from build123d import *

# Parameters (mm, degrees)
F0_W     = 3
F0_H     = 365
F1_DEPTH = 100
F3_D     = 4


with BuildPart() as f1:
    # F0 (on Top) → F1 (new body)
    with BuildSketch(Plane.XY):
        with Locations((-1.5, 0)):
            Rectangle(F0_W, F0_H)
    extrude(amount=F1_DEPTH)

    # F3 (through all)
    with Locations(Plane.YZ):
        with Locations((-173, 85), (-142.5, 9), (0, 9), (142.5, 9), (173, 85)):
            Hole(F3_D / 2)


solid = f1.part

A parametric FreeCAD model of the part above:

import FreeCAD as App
import Part
import Sketcher
Q = App.Units.Quantity

doc = App.newDocument("Part")
params = doc.addObject("Spreadsheet::Sheet", "Params")
for row, (alias, value) in enumerate([
    ("sketch1_width", "3 mm"),
    ("sketch1_height", "365 mm"),
    ("pad1_length", "100 mm"),
    ("sketch2_diameter", "4 mm"),
    ("hole_diameter", "4 mm"),
], start=1):
    params.set(f"A{row}", alias)
    params.set(f"B{row}", "=" + value)
    params.setAlias(f"B{row}", alias)

body = doc.addObject("PartDesign::Body", "Body")

# Sketch on XY plane
sketch1 = doc.addObject("Sketcher::SketchObject", "Sketch")
body.addObject(sketch1)
sketch1.AttachmentSupport = (doc.XY_Plane, [""])
sketch1.MapMode = "FlatFace"
sketch1.addGeometry(Part.LineSegment(App.Vector(-3, 182.5, 0), App.Vector(-3, -182.5, 0)), False)
sketch1.addGeometry(Part.LineSegment(App.Vector(-3, -182.5, 0), App.Vector(0, -182.5, 0)), False)
sketch1.addGeometry(Part.LineSegment(App.Vector(0, -182.5, 0), App.Vector(0, 182.5, 0)), False)
sketch1.addGeometry(Part.LineSegment(App.Vector(0, 182.5, 0), App.Vector(-3, 182.5, 0)), False)
sketch1.addConstraint(Sketcher.Constraint("Coincident", 0, 2, 1, 1))
sketch1.addConstraint(Sketcher.Constraint("Coincident", 1, 2, 2, 1))
sketch1.addConstraint(Sketcher.Constraint("Coincident", 2, 2, 3, 1))
sketch1.addConstraint(Sketcher.Constraint("Coincident", 3, 2, 0, 1))
sketch1.addConstraint(Sketcher.Constraint("Vertical", 0))
sketch1.addConstraint(Sketcher.Constraint("Horizontal", 1))
sketch1.addConstraint(Sketcher.Constraint("Vertical", 2))
sketch1.addConstraint(Sketcher.Constraint("Horizontal", 3))
sketch1.addConstraint(Sketcher.Constraint("Symmetric", 1, 2, 2, 2, -1, 1))
sketch1.addConstraint(Sketcher.Constraint("DistanceX", 1, 1, 1, 2, Q("3 mm")))
sketch1.addConstraint(Sketcher.Constraint("DistanceY", 0, 2, 0, 1, Q("365 mm")))
sketch1.setExpression("Constraints[9]", "Params.sketch1_width")
sketch1.setExpression("Constraints[10]", "Params.sketch1_height")
pad1 = doc.addObject("PartDesign::Pad", "Pad")
body.addObject(pad1)
pad1.Profile = sketch1
pad1.setExpression("Length", "Params.pad1_length")

# Sketch on YZ plane
sketch2 = doc.addObject("Sketcher::SketchObject", "Sketch001")
body.addObject(sketch2)
sketch2.AttachmentSupport = (doc.YZ_Plane, [""])
sketch2.MapMode = "FlatFace"
sketch2.addGeometry(Part.Circle(App.Vector(-173, 85, 0), App.Vector(0, 0, 1), 2), False)
sketch2.addGeometry(Part.Circle(App.Vector(-142.5, 9, 0), App.Vector(0, 0, 1), 2), False)
sketch2.addGeometry(Part.Circle(App.Vector(0, 9, 0), App.Vector(0, 0, 1), 2), False)
sketch2.addGeometry(Part.Circle(App.Vector(142.5, 9, 0), App.Vector(0, 0, 1), 2), False)
sketch2.addGeometry(Part.Circle(App.Vector(173, 85, 0), App.Vector(0, 0, 1), 2), False)
sketch2.addConstraint(Sketcher.Constraint("Equal", 0, 1))
sketch2.addConstraint(Sketcher.Constraint("Equal", 1, 2))
sketch2.addConstraint(Sketcher.Constraint("Equal", 2, 3))
sketch2.addConstraint(Sketcher.Constraint("Equal", 3, 4))
sketch2.addConstraint(Sketcher.Constraint("Symmetric", 1, 3, 3, 3, -2))
sketch2.addConstraint(Sketcher.Constraint("Symmetric", 0, 3, 4, 3, -2))
sketch2.addConstraint(Sketcher.Constraint("PointOnObject", 2, 3, -2))
sketch2.addConstraint(Sketcher.Constraint("Horizontal", 1, 3, 2, 3))
sketch2.addConstraint(Sketcher.Constraint("Diameter", 0, Q("4 mm")))
sketch2.addConstraint(Sketcher.Constraint("DistanceX", 0, 3, -1, 1, Q("173 mm")))
sketch2.addConstraint(Sketcher.Constraint("DistanceY", -1, 1, 0, 3, Q("85 mm")))
sketch2.addConstraint(Sketcher.Constraint("DistanceY", -1, 1, 1, 3, Q("9 mm")))
sketch2.addConstraint(Sketcher.Constraint("DistanceX", 1, 3, 3, 3, Q("285 mm")))
sketch2.setExpression("Constraints[8]", "Params.sketch2_diameter")
doc.recompute()
hole = doc.addObject("PartDesign::Hole", "Hole")
body.addObject(hole)
hole.Profile = sketch2
hole.ThreadType = "None"
hole.setExpression("Diameter", "Params.hole_diameter")
hole.DepthType = "ThroughAll"

doc.recompute()
